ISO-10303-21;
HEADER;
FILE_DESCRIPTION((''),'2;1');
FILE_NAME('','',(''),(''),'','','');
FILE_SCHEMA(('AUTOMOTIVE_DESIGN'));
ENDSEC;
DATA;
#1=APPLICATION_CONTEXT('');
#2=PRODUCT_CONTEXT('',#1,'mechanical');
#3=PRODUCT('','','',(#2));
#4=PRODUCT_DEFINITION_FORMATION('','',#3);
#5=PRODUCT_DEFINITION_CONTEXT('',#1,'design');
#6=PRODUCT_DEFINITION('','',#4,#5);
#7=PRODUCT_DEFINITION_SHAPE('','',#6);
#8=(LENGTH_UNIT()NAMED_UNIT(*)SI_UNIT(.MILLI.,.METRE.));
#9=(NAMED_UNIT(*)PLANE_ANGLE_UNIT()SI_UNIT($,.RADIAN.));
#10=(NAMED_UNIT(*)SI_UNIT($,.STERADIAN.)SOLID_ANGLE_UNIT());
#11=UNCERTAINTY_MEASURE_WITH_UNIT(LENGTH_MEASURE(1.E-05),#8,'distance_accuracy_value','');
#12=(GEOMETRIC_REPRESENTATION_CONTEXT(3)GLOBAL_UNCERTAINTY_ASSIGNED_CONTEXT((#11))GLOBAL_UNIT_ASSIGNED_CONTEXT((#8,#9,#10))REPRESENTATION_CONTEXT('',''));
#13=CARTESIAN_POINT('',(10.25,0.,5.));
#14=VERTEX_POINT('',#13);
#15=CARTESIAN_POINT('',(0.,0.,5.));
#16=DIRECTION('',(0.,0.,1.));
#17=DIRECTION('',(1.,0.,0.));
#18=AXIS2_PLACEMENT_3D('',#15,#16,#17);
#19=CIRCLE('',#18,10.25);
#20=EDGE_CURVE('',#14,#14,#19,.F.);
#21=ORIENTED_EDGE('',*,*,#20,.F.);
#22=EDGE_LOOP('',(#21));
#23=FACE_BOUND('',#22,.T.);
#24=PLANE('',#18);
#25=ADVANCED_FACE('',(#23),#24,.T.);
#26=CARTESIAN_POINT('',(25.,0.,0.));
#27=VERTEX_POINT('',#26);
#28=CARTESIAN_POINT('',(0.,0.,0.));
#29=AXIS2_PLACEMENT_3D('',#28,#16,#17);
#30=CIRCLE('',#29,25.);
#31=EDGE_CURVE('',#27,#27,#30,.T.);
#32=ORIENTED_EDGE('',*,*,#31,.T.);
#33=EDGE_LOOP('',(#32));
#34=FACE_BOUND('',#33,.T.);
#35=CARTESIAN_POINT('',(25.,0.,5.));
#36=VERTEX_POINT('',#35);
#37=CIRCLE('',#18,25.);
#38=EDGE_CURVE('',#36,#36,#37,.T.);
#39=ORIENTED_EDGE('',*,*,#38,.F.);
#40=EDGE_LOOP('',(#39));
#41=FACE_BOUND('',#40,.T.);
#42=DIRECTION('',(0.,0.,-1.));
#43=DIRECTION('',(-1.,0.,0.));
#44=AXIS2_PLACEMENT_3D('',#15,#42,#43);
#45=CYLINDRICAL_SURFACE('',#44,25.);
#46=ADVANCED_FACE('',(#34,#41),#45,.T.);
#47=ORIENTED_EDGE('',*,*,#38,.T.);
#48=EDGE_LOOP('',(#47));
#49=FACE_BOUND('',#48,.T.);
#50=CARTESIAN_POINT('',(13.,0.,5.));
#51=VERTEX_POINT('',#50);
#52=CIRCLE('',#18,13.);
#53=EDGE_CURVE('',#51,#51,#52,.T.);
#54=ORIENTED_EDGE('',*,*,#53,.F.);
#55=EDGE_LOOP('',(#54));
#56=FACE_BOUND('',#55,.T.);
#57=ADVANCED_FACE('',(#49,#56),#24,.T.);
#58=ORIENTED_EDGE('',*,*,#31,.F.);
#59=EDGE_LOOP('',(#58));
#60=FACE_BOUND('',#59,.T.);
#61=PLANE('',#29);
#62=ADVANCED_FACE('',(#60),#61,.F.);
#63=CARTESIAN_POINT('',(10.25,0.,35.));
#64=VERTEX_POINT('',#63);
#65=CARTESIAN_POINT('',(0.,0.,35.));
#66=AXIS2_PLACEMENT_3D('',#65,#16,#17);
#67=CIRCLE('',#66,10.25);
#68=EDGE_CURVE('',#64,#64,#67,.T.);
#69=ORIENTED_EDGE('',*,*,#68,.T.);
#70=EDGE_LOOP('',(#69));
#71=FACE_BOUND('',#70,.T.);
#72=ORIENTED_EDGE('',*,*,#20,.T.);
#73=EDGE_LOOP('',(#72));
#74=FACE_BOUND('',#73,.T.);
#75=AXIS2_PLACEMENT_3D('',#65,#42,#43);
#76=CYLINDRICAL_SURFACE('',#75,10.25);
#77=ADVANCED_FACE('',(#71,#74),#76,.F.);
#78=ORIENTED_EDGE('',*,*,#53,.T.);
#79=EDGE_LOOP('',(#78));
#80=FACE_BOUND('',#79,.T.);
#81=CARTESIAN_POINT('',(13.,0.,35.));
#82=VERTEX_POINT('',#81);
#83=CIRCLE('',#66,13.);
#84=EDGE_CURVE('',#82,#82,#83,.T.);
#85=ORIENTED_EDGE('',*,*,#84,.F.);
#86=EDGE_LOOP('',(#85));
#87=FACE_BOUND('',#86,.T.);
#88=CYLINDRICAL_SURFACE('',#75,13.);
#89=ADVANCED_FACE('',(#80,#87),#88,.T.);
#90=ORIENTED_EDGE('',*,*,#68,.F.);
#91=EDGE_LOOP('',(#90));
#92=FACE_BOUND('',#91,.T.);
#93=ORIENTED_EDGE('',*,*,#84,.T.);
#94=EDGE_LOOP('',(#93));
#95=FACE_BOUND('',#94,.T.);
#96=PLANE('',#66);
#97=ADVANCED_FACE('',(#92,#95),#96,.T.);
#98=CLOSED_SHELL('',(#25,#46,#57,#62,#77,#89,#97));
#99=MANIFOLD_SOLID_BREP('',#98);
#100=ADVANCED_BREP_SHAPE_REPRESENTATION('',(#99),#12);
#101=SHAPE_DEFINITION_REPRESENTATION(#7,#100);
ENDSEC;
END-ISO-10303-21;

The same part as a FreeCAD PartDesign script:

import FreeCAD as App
import Part
import Sketcher

doc = App.newDocument("Part")
body = doc.addObject("PartDesign::Body", "Body")

# Sketch on XY plane
sketch1 = body.newObject("Sketcher::SketchObject", "Sketch")
sketch1.AttachmentSupport = (doc.getObject("XY_Plane"), [""])
sketch1.MapMode = "FlatFace"
sketch1.addGeometry(Part.Circle(App.Vector(0, 0, 0), App.Vector(0, 0, 1), 25), False)
sketch1.addConstraint([
    Sketcher.Constraint("Coincident", 0, 3, -1, 1),
    Sketcher.Constraint("Diameter", 0, 50.0),
])
pad1 = body.newObject("PartDesign::Pad", "Pad")
pad1.Profile = sketch1
pad1.Length = 5

# Sketch on XY plane
sketch2 = body.newObject("Sketcher::SketchObject", "Sketch001")
sketch2.AttachmentSupport = (doc.getObject("XY_Plane"), [""])
sketch2.MapMode = "FlatFace"
sketch2.AttachmentOffset = App.Placement(App.Vector(0, 0, 5), App.Rotation())
sketch2.addGeometry([
    Part.Circle(App.Vector(0, 0, 0), App.Vector(0, 0, 1), 13),
    Part.Circle(App.Vector(0, 0, 0), App.Vector(0, 0, 1), 10),
], False)
sketch2.addConstraint([
    Sketcher.Constraint("Coincident", 0, 3, -1, 1),
    Sketcher.Constraint("Coincident", 1, 3, -1, 1),
    Sketcher.Constraint("Diameter", 0, 26.0),
    Sketcher.Constraint("Diameter", 1, 20.5),
])
pad2 = body.newObject("PartDesign::Pad", "Pad001")
pad2.Profile = sketch2
pad2.Length = 30

doc.recompute()
